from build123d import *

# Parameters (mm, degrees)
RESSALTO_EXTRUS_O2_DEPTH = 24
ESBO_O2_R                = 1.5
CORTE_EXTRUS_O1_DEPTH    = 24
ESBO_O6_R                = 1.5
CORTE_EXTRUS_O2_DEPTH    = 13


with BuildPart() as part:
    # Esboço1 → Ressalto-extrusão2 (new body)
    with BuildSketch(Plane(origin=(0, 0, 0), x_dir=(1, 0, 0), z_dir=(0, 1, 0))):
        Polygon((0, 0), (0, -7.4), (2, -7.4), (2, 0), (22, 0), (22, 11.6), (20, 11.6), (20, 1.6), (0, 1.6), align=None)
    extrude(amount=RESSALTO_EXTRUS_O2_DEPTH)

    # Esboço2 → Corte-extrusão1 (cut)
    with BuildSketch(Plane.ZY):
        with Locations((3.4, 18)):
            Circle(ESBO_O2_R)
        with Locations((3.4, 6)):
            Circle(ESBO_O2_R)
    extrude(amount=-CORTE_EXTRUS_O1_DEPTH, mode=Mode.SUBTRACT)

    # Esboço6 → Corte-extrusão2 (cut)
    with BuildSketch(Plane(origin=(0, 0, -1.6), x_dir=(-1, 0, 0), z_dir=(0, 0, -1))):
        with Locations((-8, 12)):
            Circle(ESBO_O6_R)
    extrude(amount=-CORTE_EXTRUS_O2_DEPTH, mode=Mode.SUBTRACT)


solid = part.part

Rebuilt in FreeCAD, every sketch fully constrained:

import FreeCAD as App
import Part
import Sketcher
from FreeCAD import Vector
Q = App.Units.Quantity


def add_polygon(sketch, points):
    """Adds a closed chain of lines whose ends are joined by coincident constraints."""
    first, n = sketch.GeometryCount, len(points)
    for a, b in zip(points, points[1:] + points[:1]):
        sketch.addGeometry(Part.LineSegment(App.Vector(*a, 0), App.Vector(*b, 0)), False)
    for i in range(n):
        sketch.addConstraint(Sketcher.Constraint("Coincident", first + i, 2, first + (i + 1) % n, 1))

doc = App.newDocument("Part")
body = doc.addObject("PartDesign::Body", "Body")

# Sketch on XZ plane
sketch1 = body.newObject("Sketcher::SketchObject", "Sketch")
sketch1.AttachmentSupport = (doc.getObject("XZ_Plane"), [""])
sketch1.MapMode = "FlatFace"
add_polygon(sketch1, [(0, 7.4), (2, 7.4), (2, 0), (22, 0), (22, -11.6), (20, -11.6), (20, -1.6), (0, -1.6)])  # lines 0-7
sketch1.addConstraint(Sketcher.Constraint("Horizontal", 0))
sketch1.addConstraint(Sketcher.Constraint("Vertical", 1))
sketch1.addConstraint(Sketcher.Constraint("Horizontal", 2))
sketch1.addConstraint(Sketcher.Constraint("Vertical", 3))
sketch1.addConstraint(Sketcher.Constraint("Horizontal", 4))
sketch1.addConstraint(Sketcher.Constraint("Vertical", 5))
sketch1.addConstraint(Sketcher.Constraint("Horizontal", 6))
sketch1.addConstraint(Sketcher.Constraint("Vertical", 7))
sketch1.addConstraint(Sketcher.Constraint("PointOnObject", 1, 2, -1))
sketch1.addConstraint(Sketcher.Constraint("PointOnObject", 6, 2, -2))
sketch1.addConstraint(Sketcher.Constraint("Equal", 0, 4))
sketch1.addConstraint(Sketcher.Constraint("DistanceX", 0, 1, 0, 2, Q("2 mm")))
sketch1.addConstraint(Sketcher.Constraint("DistanceX", 2, 1, 2, 2, Q("20 mm")))
sketch1.addConstraint(Sketcher.Constraint("DistanceY", 5, 1, 5, 2, Q("10 mm")))
sketch1.addConstraint(Sketcher.Constraint("DistanceY", 7, 1, 7, 2, Q("9 mm")))
sketch1.addConstraint(Sketcher.Constraint("DistanceY", 1, 2, 1, 1, Q("7.4 mm")))
pad1 = body.newObject("PartDesign::Pad", "Pad")
pad1.Profile = sketch1
pad1.Length = 24
pad1.Reversed = True

# Sketch on YZ plane
sketch2 = body.newObject("Sketcher::SketchObject", "Sketch001")
sketch2.AttachmentSupport = (doc.getObject("YZ_Plane"), [""])
sketch2.MapMode = "FlatFace"
sketch2.addGeometry(Part.Circle(Vector(18, 3.4, 0), Vector(0, 0, 1), 1.5), False)
sketch2.addGeometry(Part.Circle(Vector(6, 3.4, 0), Vector(0, 0, 1), 1.5), False)
sketch2.addConstraint(Sketcher.Constraint("Equal", 0, 1))
sketch2.addConstraint(Sketcher.Constraint("Horizontal", 0, 3, 1, 3))
sketch2.addConstraint(Sketcher.Constraint("Diameter", 0, Q("3 mm")))
sketch2.addConstraint(Sketcher.Constraint("DistanceX", -1, 1, 0, 3, Q("18 mm")))
sketch2.addConstraint(Sketcher.Constraint("DistanceX", -1, 1, 1, 3, Q("6 mm")))
sketch2.addConstraint(Sketcher.Constraint("DistanceY", -1, 1, 0, 3, Q("3.4 mm")))
pocket1 = body.newObject("PartDesign::Pocket", "Pocket")
pocket1.Profile = sketch2
pocket1.Length = 24
pocket1.Reversed = True

# Sketch on XY plane
sketch3 = body.newObject("Sketcher::SketchObject", "Sketch002")
sketch3.AttachmentSupport = (doc.getObject("XY_Plane"), [""])
sketch3.MapMode = "FlatFace"
sketch3.AttachmentOffset = App.Placement(Vector(0, 0, -1.6), App.Rotation())
sketch3.addGeometry(Part.Circle(Vector(8, 12, 0), Vector(0, 0, 1), 1.5), False)
sketch3.addConstraint(Sketcher.Constraint("Diameter", 0, Q("3 mm")))
sketch3.addConstraint(Sketcher.Constraint("DistanceX", -1, 1, 0, 3, Q("8 mm")))
sketch3.addConstraint(Sketcher.Constraint("DistanceY", -1, 1, 0, 3, Q("12 mm")))
pocket2 = body.newObject("PartDesign::Pocket", "Pocket001")
pocket2.Profile = sketch3
pocket2.Length = 13
pocket2.Reversed = True

doc.recompute()
